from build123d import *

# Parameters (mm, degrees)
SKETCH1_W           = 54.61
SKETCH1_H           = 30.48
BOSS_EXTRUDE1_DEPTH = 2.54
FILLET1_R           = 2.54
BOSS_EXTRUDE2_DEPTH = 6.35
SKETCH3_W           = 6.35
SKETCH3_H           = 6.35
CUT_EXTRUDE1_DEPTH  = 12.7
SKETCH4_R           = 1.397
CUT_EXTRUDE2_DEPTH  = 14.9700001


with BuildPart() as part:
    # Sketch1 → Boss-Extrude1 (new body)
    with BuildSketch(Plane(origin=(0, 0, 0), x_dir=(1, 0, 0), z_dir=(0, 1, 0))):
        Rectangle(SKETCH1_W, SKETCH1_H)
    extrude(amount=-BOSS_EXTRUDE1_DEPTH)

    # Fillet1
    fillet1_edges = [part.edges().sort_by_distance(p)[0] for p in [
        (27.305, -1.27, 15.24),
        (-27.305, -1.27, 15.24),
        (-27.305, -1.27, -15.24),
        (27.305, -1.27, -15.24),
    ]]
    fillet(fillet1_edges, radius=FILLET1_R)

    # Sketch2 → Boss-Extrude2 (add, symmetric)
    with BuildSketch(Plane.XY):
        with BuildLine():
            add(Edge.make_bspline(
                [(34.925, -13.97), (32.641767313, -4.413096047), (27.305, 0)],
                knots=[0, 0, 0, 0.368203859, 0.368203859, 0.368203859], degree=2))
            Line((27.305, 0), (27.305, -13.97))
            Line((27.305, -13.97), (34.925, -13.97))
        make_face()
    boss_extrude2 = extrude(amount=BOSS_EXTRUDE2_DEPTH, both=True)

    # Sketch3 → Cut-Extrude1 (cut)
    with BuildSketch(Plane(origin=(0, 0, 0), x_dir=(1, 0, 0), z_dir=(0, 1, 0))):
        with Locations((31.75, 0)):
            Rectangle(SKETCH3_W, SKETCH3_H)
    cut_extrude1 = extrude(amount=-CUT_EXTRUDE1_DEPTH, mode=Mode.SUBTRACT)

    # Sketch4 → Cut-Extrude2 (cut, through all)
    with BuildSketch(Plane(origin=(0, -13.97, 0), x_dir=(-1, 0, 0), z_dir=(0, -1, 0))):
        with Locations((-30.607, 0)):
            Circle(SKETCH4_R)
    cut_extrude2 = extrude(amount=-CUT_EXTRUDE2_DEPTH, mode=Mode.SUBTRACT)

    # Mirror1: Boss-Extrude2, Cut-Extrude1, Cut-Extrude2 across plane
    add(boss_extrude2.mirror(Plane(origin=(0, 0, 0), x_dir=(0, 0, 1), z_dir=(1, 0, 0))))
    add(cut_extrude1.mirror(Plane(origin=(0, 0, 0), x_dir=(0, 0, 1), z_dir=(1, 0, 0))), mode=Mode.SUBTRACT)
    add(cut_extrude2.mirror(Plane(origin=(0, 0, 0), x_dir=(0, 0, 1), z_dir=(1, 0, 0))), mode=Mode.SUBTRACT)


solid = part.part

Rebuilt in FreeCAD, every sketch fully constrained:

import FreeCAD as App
import Part
import Sketcher
Q = App.Units.Quantity


def edges_at(feature, points):
    """Names of the edges that pass closest to the given points."""
    edges = feature.Shape.Edges
    near = lambda p: min(range(len(edges)), key=lambda i: edges[i].distToShape(Part.Vertex(*p))[0])
    return sorted({f"Edge{near(p) + 1}" for p in points})

doc = App.newDocument("Part")
params = doc.addObject("Spreadsheet::Sheet", "Params")
for row, (alias, value) in enumerate([
    ("sketch1_height", "1.2 in"),
    ("sketch1_width", "2.15 in"),
    ("pad1_length", "0.1 in"),
    ("fillet_radius", "0.1 in"),
    ("pad2_length", "0.5 in"),
    ("sketch3_width", "0.25 in"),
    ("pocket1_length", "0.5 in"),
    ("sketch4_diameter", "0.11 in"),
], start=1):
    params.set(f"A{row}", alias)
    params.set(f"B{row}", "=" + value)
    params.setAlias(f"B{row}", alias)

body = doc.addObject("PartDesign::Body", "Body")

# Sketch on XZ plane
sketch1 = body.newObject("Sketcher::SketchObject", "Sketch")
sketch1.AttachmentSupport = (doc.getObject("XZ_Plane"), [""])
sketch1.MapMode = "FlatFace"
sketch1.addGeometry([
    Part.LineSegment(App.Vector(-27, -15, 0), App.Vector(-27, 15, 0)),
    Part.LineSegment(App.Vector(-27, 15, 0), App.Vector(27, 15, 0)),
    Part.LineSegment(App.Vector(27, 15, 0), App.Vector(27, -15, 0)),
    Part.LineSegment(App.Vector(27, -15, 0), App.Vector(-27, -15, 0)),
], False)
sketch1.addConstraint([
    Sketcher.Constraint("Coincident", 0, 2, 1, 1),
    Sketcher.Constraint("Coincident", 1, 2, 2, 1),
    Sketcher.Constraint("Coincident", 2, 2, 3, 1),
    Sketcher.Constraint("Coincident", 3, 2, 0, 1),
    Sketcher.Constraint("Vertical", 0),
    Sketcher.Constraint("Horizontal", 1),
    Sketcher.Constraint("Vertical", 2),
    Sketcher.Constraint("Horizontal", 3),
    Sketcher.Constraint("Symmetric", 0, 2, 2, 2, -1, 1),
    Sketcher.Constraint("DistanceY", 0, 1, 0, 2, Q("1.2 in")),
    Sketcher.Constraint("DistanceX", 1, 1, 1, 2, Q("2.15 in")),
])
sketch1.setExpression("Constraints[9]", "Params.sketch1_height")
sketch1.setExpression("Constraints[10]", "Params.sketch1_width")
pad1 = body.newObject("PartDesign::Pad", "Pad")
pad1.Profile = sketch1
pad1.setExpression("Length", "Params.pad1_length")
doc.recompute()

fillet = body.newObject("PartDesign::Fillet", "Fillet")
fillet.Base = (pad1, edges_at(pad1, [
    (27.305, -1.27, 15.24),
    (-27.305, -1.27, 15.24),
    (-27.305, -1.27, -15.24),
    (27.305, -1.27, -15.24),
]))
fillet.setExpression("Radius", "Params.fillet_radius")

# Sketch on XY plane
sketch2 = body.newObject("Sketcher::SketchObject", "Sketch001")
sketch2.AttachmentSupport = (doc.getObject("XY_Plane"), [""])
sketch2.MapMode = "FlatFace"
sketch2.addGeometry([
    Part.BSplineCurve([App.Vector(34.925, -13.97, 0), App.Vector(32.641767, -4.413096, 0), App.Vector(27.305, 0, 0)], [3, 3], [0, 0.368203859], False, 2, [1, 1, 1], False),
    Part.LineSegment(App.Vector(27.305, 0, 0), App.Vector(27.305, -13.97, 0)),
    Part.LineSegment(App.Vector(27.305, -13.97, 0), App.Vector(34.925, -13.97, 0)),
], False)
sketch2.addConstraint([
    Sketcher.Constraint("Block", 0),
    Sketcher.Constraint("Coincident", 0, 2, 1, 1),
    Sketcher.Constraint("Coincident", 1, 2, 2, 1),
    Sketcher.Constraint("Coincident", 2, 2, 0, 1),
    Sketcher.Constraint("Vertical", 1),
    Sketcher.Constraint("Horizontal", 2),
])
pad2 = body.newObject("PartDesign::Pad", "Pad001")
pad2.Profile = sketch2
pad2.setExpression("Length", "Params.pad2_length")
pad2.Midplane = True

# Sketch on XZ plane
sketch3 = body.newObject("Sketcher::SketchObject", "Sketch002")
sketch3.AttachmentSupport = (doc.getObject("XZ_Plane"), [""])
sketch3.MapMode = "FlatFace"
sketch3.addGeometry([
    Part.LineSegment(App.Vector(29, -3, 0), App.Vector(29, 3, 0)),
    Part.LineSegment(App.Vector(29, 3, 0), App.Vector(35, 3, 0)),
    Part.LineSegment(App.Vector(35, 3, 0), App.Vector(35, -3, 0)),
    Part.LineSegment(App.Vector(35, -3, 0), App.Vector(29, -3, 0)),
], False)
sketch3.addConstraint([
    Sketcher.Constraint("Coincident", 0, 2, 1, 1),
    Sketcher.Constraint("Coincident", 1, 2, 2, 1),
    Sketcher.Constraint("Coincident", 2, 2, 3, 1),
    Sketcher.Constraint("Coincident", 3, 2, 0, 1),
    Sketcher.Constraint("Vertical", 0),
    Sketcher.Constraint("Horizontal", 1),
    Sketcher.Constraint("Vertical", 2),
    Sketcher.Constraint("Horizontal", 3),
    Sketcher.Constraint("Equal", 3, 0),
    Sketcher.Constraint("DistanceX", 1, 1, 1, 2, Q("0.25 in")),
    Sketcher.Constraint("DistanceX", -1, 1, 0, 2, Q("1.125 in")),
    Sketcher.Constraint("DistanceY", -1, 1, 0, 2, Q("0.125 in")),
])
sketch3.setExpression("Constraints[9]", "Params.sketch3_width")
pocket1 = body.newObject("PartDesign::Pocket", "Pocket")
pocket1.Profile = sketch3
pocket1.setExpression("Length", "Params.pocket1_length")
pocket1.Reversed = True

# Sketch on XZ plane
sketch4 = body.newObject("Sketcher::SketchObject", "Sketch003")
sketch4.AttachmentSupport = (doc.getObject("XZ_Plane"), [""])
sketch4.MapMode = "FlatFace"
sketch4.AttachmentOffset = App.Placement(App.Vector(0, 0, 0.55 * 25.4), App.Rotation())
sketch4.addGeometry(Part.Circle(App.Vector(30.6, 0, 0), App.Vector(0, 0, 1), 1.4), False)
sketch4.addConstraint([
    Sketcher.Constraint("PointOnObject", 0, 3, -1),
    Sketcher.Constraint("Diameter", 0, Q("0.11 in")),
    Sketcher.Constraint("DistanceX", -1, 1, 0, 3, Q("1.205 in")),
])
sketch4.setExpression("Constraints[1]", "Params.sketch4_diameter")
pocket2 = body.newObject("PartDesign::Pocket", "Pocket001")
pocket2.Profile = sketch4
pocket2.Type = "ThroughAll"
doc.recompute()

mirrored = body.newObject("PartDesign::Mirrored", "Mirrored")
mirrored.Originals = [pad2, pocket1, pocket2]
mirrored.MirrorPlane = (doc.getObject("YZ_Plane"), [""])
body.Tip = mirrored

doc.recompute()
